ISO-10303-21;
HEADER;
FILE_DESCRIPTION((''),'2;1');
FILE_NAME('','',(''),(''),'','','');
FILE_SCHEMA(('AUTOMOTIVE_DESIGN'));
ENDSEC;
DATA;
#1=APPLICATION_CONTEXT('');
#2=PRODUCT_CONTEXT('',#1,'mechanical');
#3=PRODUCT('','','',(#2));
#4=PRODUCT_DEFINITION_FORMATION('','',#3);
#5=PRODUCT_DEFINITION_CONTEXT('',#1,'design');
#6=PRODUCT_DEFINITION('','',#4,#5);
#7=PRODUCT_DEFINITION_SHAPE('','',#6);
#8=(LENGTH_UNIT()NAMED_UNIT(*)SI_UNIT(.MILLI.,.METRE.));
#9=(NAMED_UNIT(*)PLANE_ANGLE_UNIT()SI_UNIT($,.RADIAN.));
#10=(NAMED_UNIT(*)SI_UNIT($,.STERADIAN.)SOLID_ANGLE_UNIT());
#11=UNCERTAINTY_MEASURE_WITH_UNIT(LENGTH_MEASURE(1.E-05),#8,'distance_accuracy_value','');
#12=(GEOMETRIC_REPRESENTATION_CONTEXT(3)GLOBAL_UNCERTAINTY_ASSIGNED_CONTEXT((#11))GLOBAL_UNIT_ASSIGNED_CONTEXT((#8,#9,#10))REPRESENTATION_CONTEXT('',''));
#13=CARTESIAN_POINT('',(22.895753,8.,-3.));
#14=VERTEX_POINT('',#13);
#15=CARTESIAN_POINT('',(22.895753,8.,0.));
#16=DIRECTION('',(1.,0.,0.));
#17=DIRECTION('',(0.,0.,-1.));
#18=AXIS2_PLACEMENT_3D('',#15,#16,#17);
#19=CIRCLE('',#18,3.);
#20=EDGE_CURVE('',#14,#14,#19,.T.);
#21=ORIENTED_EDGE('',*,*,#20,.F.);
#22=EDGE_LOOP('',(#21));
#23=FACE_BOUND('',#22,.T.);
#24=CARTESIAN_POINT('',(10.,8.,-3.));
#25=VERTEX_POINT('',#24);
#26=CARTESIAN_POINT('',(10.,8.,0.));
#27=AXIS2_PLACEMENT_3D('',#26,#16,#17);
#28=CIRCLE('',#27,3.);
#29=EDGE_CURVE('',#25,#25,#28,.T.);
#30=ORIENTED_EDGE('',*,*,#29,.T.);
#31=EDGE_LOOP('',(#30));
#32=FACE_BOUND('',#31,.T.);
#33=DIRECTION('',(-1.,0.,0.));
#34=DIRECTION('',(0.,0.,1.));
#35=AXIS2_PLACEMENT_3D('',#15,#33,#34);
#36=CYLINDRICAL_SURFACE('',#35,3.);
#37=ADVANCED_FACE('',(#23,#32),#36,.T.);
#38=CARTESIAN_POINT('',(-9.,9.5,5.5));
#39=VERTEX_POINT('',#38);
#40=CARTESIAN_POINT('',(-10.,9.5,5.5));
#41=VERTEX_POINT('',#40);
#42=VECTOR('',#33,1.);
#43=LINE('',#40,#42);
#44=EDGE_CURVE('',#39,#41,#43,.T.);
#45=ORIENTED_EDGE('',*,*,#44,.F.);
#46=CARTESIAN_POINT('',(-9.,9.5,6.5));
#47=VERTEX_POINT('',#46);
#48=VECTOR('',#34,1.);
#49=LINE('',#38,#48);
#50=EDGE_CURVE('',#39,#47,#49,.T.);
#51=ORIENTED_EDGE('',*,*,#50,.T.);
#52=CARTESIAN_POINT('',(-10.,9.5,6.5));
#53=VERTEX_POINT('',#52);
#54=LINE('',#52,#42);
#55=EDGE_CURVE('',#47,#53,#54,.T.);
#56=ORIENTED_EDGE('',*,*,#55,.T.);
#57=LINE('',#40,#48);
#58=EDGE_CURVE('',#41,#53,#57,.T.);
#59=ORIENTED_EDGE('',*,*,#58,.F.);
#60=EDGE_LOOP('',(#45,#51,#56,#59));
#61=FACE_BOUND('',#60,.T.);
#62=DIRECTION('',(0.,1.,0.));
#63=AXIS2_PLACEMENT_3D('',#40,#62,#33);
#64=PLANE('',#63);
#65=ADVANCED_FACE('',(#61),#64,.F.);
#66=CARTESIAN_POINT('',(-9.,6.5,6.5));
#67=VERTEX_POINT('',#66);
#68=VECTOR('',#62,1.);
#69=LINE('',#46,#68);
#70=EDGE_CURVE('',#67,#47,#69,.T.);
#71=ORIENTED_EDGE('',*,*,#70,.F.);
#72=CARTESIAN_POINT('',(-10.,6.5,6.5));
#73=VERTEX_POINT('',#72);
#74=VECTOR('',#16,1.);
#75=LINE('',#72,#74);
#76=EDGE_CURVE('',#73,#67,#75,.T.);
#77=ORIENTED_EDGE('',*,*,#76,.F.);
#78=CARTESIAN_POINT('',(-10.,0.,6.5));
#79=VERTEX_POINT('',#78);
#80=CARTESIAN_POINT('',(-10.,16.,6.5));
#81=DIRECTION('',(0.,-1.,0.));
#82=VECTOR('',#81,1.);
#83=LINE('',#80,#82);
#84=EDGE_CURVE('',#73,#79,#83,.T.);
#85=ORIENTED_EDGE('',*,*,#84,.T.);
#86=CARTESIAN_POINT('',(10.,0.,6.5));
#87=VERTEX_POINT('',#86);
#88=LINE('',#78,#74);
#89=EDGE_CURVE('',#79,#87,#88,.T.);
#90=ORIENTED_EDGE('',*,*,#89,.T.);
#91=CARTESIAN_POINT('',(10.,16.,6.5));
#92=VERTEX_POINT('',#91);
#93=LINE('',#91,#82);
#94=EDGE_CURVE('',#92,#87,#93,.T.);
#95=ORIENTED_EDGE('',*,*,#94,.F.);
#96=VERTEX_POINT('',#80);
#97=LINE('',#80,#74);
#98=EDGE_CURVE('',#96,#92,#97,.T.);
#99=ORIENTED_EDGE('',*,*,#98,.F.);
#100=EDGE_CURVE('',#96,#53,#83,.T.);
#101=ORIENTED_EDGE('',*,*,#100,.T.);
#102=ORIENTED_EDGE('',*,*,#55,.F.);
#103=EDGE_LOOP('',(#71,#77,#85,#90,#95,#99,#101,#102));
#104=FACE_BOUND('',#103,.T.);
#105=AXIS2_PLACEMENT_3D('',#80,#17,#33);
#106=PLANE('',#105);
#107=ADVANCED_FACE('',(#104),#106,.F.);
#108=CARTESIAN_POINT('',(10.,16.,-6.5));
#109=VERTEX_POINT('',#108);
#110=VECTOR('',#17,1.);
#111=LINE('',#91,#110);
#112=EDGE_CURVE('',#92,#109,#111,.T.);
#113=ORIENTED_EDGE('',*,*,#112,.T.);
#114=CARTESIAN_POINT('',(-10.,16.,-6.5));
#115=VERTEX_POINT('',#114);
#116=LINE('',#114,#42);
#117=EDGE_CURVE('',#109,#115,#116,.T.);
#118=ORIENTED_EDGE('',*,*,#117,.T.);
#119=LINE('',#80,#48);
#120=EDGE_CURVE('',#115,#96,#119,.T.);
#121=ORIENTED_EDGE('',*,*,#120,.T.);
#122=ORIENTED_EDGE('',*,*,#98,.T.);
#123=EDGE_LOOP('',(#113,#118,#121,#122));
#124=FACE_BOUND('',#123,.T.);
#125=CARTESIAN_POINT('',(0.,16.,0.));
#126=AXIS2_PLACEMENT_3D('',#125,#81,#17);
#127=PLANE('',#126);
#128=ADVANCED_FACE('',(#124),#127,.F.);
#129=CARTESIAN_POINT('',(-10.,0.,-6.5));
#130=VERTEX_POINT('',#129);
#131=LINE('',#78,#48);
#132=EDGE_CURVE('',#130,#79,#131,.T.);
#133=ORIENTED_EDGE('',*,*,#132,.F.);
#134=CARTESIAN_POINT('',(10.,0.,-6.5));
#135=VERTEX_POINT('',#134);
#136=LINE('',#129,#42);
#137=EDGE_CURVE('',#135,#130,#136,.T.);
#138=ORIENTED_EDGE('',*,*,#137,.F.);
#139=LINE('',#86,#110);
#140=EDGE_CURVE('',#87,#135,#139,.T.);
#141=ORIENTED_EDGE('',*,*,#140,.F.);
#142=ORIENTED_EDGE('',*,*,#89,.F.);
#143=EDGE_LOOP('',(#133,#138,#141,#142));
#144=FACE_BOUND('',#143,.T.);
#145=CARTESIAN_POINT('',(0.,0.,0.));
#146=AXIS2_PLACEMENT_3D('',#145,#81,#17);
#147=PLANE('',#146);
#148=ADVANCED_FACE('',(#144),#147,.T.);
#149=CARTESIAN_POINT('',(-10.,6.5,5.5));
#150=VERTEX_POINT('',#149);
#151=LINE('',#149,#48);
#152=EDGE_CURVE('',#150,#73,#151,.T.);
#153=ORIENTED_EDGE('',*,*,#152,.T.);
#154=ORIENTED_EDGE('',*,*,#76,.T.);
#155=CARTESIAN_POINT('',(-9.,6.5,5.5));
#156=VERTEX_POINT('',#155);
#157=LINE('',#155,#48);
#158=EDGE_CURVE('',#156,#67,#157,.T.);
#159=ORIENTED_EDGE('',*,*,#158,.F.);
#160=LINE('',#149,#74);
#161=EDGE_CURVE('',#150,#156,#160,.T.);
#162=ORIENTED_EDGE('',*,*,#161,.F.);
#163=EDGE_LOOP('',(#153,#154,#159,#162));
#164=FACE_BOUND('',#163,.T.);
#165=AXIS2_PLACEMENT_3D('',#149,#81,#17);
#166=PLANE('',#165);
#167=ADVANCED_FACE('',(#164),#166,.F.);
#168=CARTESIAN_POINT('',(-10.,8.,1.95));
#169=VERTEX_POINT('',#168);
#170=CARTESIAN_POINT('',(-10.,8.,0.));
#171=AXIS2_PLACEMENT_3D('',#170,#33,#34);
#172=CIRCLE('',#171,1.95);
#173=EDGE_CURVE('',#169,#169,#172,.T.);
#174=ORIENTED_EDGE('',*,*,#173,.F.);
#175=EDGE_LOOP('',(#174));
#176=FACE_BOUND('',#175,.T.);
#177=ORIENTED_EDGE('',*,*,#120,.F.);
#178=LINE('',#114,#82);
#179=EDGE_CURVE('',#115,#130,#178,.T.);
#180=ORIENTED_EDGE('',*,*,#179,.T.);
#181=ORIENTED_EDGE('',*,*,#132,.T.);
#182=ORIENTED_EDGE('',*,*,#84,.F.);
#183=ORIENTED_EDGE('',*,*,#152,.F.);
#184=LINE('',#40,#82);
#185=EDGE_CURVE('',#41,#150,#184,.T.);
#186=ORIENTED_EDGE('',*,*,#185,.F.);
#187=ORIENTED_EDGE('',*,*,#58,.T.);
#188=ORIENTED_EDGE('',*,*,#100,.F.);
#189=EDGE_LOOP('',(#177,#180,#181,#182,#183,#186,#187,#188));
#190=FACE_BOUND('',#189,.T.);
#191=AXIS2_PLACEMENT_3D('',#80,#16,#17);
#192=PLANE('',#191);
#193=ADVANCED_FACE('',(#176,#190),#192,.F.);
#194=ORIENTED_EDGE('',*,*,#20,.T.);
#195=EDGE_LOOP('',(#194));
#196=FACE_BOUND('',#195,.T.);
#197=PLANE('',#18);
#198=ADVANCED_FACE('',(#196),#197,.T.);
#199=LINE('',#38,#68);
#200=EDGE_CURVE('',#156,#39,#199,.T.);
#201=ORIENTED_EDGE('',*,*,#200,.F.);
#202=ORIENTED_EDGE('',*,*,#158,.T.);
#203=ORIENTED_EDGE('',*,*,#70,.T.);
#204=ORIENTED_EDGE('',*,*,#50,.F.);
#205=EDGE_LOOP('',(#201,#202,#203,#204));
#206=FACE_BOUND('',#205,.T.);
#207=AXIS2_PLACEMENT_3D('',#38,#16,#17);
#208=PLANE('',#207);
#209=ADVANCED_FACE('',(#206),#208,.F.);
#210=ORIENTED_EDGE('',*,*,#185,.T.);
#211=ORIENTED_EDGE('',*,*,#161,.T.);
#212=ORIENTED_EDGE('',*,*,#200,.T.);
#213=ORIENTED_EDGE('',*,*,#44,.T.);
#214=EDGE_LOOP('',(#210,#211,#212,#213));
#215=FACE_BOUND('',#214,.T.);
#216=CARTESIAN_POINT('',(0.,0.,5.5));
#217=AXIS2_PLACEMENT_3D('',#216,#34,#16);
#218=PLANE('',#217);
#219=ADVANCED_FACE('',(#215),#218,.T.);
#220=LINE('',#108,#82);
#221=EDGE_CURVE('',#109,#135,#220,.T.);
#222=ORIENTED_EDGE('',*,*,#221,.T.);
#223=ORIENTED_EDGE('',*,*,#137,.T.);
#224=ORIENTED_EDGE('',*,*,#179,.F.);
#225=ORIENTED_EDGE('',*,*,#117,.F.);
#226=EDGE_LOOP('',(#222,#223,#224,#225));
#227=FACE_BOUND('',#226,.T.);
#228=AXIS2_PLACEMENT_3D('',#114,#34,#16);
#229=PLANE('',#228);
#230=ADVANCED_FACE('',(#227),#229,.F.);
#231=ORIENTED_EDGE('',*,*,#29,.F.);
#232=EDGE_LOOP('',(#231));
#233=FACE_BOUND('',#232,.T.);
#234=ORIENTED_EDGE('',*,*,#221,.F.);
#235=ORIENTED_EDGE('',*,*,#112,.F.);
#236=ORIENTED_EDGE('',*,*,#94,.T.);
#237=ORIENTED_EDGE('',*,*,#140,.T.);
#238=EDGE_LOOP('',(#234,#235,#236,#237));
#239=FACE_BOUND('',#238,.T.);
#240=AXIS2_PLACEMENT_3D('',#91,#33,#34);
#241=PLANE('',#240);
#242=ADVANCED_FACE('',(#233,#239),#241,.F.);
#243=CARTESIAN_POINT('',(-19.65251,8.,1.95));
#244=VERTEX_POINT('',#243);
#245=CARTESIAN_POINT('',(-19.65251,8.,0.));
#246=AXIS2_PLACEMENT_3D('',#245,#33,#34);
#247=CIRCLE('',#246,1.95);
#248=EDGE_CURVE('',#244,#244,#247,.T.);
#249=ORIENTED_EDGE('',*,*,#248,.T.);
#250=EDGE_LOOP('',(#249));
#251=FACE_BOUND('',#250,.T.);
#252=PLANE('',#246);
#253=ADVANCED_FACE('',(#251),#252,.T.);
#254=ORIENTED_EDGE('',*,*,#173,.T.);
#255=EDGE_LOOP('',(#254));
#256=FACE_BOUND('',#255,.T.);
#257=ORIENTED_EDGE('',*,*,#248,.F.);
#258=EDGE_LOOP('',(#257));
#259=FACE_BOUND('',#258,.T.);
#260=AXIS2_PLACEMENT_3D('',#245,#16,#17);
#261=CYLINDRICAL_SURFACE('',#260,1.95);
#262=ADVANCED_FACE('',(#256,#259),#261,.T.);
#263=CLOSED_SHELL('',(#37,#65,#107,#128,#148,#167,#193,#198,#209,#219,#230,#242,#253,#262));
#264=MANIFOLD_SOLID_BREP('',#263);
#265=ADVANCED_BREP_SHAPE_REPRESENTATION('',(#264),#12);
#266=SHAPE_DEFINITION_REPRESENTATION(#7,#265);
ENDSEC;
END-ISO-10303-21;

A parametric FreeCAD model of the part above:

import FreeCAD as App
import Part
import Sketcher
Q = App.Units.Quantity


def add_polygon(sketch, points):
    """Adds a closed chain of lines whose ends are joined by coincident constraints."""
    first, n = sketch.GeometryCount, len(points)
    for a, b in zip(points, points[1:] + points[:1]):
        sketch.addGeometry(Part.LineSegment(App.Vector(*a, 0), App.Vector(*b, 0)), False)
    for i in range(n):
        sketch.addConstraint(Sketcher.Constraint("Coincident", first + i, 2, first + (i + 1) % n, 1))

doc = App.newDocument("Part")
params = doc.addObject("Spreadsheet::Sheet", "Params")
for row, (alias, value) in enumerate([
    ("sketch1_width", "20 mm"),
    ("sketch1_height", "13 mm"),
    ("pad1_length", "16 mm"),
    ("sketch2_diameter", "3.9 mm"),
    ("pad2_length", "9.65251 mm"),
    ("sketch3_diameter", "6 mm"),
    ("pad3_length", "12.895753 mm"),
    ("sketch4_width", "1 mm"),
    ("sketch4_height", "3 mm"),
    ("pocket1_length", "1 mm"),
], start=1):
    params.set(f"A{row}", alias)
    params.set(f"B{row}", "=" + value)
    params.setAlias(f"B{row}", alias)

body = doc.addObject("PartDesign::Body", "Body")

sketch1 = body.newObject("Sketcher::SketchObject", "Sketch")
sketch1.AttachmentSupport = (doc.getObject("XZ_Plane"), [""])
sketch1.MapMode = "FlatFace"
add_polygon(sketch1, [(-10, -6), (-10, 6), (10, 6), (10, -6)])
sketch1.addConstraint([
    Sketcher.Constraint("Vertical", 0),
    Sketcher.Constraint("Horizontal", 1),
    Sketcher.Constraint("Vertical", 2),
    Sketcher.Constraint("Horizontal", 3),
    Sketcher.Constraint("Symmetric", 0, 2, 2, 2, -1, 1),
    Sketcher.Constraint("DistanceX", 1, 1, 1, 2, Q("20 mm")),
    Sketcher.Constraint("DistanceY", 0, 1, 0, 2, Q("13 mm")),
])
sketch1.setExpression("Constraints[9]", "Params.sketch1_width")
sketch1.setExpression("Constraints[10]", "Params.sketch1_height")
pad1 = body.newObject("PartDesign::Pad", "Pad")
pad1.Profile = sketch1
pad1.setExpression("Length", "Params.pad1_length")
pad1.Reversed = True

sketch2 = body.newObject("Sketcher::SketchObject", "Sketch001")
sketch2.AttachmentSupport = (doc.getObject("YZ_Plane"), [""])
sketch2.MapMode = "FlatFace"
sketch2.AttachmentOffset = App.Placement(App.Vector(0, 0, -10), App.Rotation())
sketch2.addGeometry(Part.Circle(App.Vector(8, 0, 0), App.Vector(0, 0, 1), 1.9), False)
sketch2.addConstraint([
    Sketcher.Constraint("PointOnObject", 0, 3, -1),
    Sketcher.Constraint("Diameter", 0, Q("3.9 mm")),
    Sketcher.Constraint("DistanceX", -1, 1, 0, 3, Q("8 mm")),
])
sketch2.setExpression("Constraints[1]", "Params.sketch2_diameter")
pad2 = body.newObject("PartDesign::Pad", "Pad001")
pad2.Profile = sketch2
pad2.setExpression("Length", "Params.pad2_length")
pad2.Reversed = True

sketch3 = body.newObject("Sketcher::SketchObject", "Sketch002")
sketch3.AttachmentSupport = (doc.getObject("YZ_Plane"), [""])
sketch3.MapMode = "FlatFace"
sketch3.AttachmentOffset = App.Placement(App.Vector(0, 0, 10), App.Rotation())
sketch3.addGeometry(Part.Circle(App.Vector(8, 0, 0), App.Vector(0, 0, 1), 3), False)
sketch3.addConstraint([
    Sketcher.Constraint("PointOnObject", 0, 3, -1),
    Sketcher.Constraint("Diameter", 0, Q("6 mm")),
    Sketcher.Constraint("DistanceX", -1, 1, 0, 3, Q("8 mm")),
])
sketch3.setExpression("Constraints[1]", "Params.sketch3_diameter")
pad3 = body.newObject("PartDesign::Pad", "Pad002")
pad3.Profile = sketch3
pad3.setExpression("Length", "Params.pad3_length")

sketch4 = body.newObject("Sketcher::SketchObject", "Sketch003")
sketch4.AttachmentSupport = (doc.getObject("XY_Plane"), [""])
sketch4.MapMode = "FlatFace"
sketch4.AttachmentOffset = App.Placement(App.Vector(0, 0, 6.5), App.Rotation())
add_polygon(sketch4, [(-10, 9.5), (-10, 6.5), (-9, 6.5), (-9, 9.5)])
sketch4.addConstraint([
    Sketcher.Constraint("Vertical", 0),
    Sketcher.Constraint("Horizontal", 1),
    Sketcher.Constraint("Vertical", 2),
    Sketcher.Constraint("Horizontal", 3),
    Sketcher.Constraint("DistanceX", 1, 1, 1, 2, Q("1 mm")),
    Sketcher.Constraint("DistanceY", 0, 2, 0, 1, Q("3 mm")),
    Sketcher.Constraint("DistanceX", 0, 2, -1, 1, Q("10 mm")),
    Sketcher.Constraint("DistanceY", -1, 1, 0, 2, Q("6.5 mm")),
])
sketch4.setExpression("Constraints[8]", "Params.sketch4_width")
sketch4.setExpression("Constraints[9]", "Params.sketch4_height")
pocket1 = body.newObject("PartDesign::Pocket", "Pocket")
pocket1.Profile = sketch4
pocket1.setExpression("Length", "Params.pocket1_length")

doc.recompute()
